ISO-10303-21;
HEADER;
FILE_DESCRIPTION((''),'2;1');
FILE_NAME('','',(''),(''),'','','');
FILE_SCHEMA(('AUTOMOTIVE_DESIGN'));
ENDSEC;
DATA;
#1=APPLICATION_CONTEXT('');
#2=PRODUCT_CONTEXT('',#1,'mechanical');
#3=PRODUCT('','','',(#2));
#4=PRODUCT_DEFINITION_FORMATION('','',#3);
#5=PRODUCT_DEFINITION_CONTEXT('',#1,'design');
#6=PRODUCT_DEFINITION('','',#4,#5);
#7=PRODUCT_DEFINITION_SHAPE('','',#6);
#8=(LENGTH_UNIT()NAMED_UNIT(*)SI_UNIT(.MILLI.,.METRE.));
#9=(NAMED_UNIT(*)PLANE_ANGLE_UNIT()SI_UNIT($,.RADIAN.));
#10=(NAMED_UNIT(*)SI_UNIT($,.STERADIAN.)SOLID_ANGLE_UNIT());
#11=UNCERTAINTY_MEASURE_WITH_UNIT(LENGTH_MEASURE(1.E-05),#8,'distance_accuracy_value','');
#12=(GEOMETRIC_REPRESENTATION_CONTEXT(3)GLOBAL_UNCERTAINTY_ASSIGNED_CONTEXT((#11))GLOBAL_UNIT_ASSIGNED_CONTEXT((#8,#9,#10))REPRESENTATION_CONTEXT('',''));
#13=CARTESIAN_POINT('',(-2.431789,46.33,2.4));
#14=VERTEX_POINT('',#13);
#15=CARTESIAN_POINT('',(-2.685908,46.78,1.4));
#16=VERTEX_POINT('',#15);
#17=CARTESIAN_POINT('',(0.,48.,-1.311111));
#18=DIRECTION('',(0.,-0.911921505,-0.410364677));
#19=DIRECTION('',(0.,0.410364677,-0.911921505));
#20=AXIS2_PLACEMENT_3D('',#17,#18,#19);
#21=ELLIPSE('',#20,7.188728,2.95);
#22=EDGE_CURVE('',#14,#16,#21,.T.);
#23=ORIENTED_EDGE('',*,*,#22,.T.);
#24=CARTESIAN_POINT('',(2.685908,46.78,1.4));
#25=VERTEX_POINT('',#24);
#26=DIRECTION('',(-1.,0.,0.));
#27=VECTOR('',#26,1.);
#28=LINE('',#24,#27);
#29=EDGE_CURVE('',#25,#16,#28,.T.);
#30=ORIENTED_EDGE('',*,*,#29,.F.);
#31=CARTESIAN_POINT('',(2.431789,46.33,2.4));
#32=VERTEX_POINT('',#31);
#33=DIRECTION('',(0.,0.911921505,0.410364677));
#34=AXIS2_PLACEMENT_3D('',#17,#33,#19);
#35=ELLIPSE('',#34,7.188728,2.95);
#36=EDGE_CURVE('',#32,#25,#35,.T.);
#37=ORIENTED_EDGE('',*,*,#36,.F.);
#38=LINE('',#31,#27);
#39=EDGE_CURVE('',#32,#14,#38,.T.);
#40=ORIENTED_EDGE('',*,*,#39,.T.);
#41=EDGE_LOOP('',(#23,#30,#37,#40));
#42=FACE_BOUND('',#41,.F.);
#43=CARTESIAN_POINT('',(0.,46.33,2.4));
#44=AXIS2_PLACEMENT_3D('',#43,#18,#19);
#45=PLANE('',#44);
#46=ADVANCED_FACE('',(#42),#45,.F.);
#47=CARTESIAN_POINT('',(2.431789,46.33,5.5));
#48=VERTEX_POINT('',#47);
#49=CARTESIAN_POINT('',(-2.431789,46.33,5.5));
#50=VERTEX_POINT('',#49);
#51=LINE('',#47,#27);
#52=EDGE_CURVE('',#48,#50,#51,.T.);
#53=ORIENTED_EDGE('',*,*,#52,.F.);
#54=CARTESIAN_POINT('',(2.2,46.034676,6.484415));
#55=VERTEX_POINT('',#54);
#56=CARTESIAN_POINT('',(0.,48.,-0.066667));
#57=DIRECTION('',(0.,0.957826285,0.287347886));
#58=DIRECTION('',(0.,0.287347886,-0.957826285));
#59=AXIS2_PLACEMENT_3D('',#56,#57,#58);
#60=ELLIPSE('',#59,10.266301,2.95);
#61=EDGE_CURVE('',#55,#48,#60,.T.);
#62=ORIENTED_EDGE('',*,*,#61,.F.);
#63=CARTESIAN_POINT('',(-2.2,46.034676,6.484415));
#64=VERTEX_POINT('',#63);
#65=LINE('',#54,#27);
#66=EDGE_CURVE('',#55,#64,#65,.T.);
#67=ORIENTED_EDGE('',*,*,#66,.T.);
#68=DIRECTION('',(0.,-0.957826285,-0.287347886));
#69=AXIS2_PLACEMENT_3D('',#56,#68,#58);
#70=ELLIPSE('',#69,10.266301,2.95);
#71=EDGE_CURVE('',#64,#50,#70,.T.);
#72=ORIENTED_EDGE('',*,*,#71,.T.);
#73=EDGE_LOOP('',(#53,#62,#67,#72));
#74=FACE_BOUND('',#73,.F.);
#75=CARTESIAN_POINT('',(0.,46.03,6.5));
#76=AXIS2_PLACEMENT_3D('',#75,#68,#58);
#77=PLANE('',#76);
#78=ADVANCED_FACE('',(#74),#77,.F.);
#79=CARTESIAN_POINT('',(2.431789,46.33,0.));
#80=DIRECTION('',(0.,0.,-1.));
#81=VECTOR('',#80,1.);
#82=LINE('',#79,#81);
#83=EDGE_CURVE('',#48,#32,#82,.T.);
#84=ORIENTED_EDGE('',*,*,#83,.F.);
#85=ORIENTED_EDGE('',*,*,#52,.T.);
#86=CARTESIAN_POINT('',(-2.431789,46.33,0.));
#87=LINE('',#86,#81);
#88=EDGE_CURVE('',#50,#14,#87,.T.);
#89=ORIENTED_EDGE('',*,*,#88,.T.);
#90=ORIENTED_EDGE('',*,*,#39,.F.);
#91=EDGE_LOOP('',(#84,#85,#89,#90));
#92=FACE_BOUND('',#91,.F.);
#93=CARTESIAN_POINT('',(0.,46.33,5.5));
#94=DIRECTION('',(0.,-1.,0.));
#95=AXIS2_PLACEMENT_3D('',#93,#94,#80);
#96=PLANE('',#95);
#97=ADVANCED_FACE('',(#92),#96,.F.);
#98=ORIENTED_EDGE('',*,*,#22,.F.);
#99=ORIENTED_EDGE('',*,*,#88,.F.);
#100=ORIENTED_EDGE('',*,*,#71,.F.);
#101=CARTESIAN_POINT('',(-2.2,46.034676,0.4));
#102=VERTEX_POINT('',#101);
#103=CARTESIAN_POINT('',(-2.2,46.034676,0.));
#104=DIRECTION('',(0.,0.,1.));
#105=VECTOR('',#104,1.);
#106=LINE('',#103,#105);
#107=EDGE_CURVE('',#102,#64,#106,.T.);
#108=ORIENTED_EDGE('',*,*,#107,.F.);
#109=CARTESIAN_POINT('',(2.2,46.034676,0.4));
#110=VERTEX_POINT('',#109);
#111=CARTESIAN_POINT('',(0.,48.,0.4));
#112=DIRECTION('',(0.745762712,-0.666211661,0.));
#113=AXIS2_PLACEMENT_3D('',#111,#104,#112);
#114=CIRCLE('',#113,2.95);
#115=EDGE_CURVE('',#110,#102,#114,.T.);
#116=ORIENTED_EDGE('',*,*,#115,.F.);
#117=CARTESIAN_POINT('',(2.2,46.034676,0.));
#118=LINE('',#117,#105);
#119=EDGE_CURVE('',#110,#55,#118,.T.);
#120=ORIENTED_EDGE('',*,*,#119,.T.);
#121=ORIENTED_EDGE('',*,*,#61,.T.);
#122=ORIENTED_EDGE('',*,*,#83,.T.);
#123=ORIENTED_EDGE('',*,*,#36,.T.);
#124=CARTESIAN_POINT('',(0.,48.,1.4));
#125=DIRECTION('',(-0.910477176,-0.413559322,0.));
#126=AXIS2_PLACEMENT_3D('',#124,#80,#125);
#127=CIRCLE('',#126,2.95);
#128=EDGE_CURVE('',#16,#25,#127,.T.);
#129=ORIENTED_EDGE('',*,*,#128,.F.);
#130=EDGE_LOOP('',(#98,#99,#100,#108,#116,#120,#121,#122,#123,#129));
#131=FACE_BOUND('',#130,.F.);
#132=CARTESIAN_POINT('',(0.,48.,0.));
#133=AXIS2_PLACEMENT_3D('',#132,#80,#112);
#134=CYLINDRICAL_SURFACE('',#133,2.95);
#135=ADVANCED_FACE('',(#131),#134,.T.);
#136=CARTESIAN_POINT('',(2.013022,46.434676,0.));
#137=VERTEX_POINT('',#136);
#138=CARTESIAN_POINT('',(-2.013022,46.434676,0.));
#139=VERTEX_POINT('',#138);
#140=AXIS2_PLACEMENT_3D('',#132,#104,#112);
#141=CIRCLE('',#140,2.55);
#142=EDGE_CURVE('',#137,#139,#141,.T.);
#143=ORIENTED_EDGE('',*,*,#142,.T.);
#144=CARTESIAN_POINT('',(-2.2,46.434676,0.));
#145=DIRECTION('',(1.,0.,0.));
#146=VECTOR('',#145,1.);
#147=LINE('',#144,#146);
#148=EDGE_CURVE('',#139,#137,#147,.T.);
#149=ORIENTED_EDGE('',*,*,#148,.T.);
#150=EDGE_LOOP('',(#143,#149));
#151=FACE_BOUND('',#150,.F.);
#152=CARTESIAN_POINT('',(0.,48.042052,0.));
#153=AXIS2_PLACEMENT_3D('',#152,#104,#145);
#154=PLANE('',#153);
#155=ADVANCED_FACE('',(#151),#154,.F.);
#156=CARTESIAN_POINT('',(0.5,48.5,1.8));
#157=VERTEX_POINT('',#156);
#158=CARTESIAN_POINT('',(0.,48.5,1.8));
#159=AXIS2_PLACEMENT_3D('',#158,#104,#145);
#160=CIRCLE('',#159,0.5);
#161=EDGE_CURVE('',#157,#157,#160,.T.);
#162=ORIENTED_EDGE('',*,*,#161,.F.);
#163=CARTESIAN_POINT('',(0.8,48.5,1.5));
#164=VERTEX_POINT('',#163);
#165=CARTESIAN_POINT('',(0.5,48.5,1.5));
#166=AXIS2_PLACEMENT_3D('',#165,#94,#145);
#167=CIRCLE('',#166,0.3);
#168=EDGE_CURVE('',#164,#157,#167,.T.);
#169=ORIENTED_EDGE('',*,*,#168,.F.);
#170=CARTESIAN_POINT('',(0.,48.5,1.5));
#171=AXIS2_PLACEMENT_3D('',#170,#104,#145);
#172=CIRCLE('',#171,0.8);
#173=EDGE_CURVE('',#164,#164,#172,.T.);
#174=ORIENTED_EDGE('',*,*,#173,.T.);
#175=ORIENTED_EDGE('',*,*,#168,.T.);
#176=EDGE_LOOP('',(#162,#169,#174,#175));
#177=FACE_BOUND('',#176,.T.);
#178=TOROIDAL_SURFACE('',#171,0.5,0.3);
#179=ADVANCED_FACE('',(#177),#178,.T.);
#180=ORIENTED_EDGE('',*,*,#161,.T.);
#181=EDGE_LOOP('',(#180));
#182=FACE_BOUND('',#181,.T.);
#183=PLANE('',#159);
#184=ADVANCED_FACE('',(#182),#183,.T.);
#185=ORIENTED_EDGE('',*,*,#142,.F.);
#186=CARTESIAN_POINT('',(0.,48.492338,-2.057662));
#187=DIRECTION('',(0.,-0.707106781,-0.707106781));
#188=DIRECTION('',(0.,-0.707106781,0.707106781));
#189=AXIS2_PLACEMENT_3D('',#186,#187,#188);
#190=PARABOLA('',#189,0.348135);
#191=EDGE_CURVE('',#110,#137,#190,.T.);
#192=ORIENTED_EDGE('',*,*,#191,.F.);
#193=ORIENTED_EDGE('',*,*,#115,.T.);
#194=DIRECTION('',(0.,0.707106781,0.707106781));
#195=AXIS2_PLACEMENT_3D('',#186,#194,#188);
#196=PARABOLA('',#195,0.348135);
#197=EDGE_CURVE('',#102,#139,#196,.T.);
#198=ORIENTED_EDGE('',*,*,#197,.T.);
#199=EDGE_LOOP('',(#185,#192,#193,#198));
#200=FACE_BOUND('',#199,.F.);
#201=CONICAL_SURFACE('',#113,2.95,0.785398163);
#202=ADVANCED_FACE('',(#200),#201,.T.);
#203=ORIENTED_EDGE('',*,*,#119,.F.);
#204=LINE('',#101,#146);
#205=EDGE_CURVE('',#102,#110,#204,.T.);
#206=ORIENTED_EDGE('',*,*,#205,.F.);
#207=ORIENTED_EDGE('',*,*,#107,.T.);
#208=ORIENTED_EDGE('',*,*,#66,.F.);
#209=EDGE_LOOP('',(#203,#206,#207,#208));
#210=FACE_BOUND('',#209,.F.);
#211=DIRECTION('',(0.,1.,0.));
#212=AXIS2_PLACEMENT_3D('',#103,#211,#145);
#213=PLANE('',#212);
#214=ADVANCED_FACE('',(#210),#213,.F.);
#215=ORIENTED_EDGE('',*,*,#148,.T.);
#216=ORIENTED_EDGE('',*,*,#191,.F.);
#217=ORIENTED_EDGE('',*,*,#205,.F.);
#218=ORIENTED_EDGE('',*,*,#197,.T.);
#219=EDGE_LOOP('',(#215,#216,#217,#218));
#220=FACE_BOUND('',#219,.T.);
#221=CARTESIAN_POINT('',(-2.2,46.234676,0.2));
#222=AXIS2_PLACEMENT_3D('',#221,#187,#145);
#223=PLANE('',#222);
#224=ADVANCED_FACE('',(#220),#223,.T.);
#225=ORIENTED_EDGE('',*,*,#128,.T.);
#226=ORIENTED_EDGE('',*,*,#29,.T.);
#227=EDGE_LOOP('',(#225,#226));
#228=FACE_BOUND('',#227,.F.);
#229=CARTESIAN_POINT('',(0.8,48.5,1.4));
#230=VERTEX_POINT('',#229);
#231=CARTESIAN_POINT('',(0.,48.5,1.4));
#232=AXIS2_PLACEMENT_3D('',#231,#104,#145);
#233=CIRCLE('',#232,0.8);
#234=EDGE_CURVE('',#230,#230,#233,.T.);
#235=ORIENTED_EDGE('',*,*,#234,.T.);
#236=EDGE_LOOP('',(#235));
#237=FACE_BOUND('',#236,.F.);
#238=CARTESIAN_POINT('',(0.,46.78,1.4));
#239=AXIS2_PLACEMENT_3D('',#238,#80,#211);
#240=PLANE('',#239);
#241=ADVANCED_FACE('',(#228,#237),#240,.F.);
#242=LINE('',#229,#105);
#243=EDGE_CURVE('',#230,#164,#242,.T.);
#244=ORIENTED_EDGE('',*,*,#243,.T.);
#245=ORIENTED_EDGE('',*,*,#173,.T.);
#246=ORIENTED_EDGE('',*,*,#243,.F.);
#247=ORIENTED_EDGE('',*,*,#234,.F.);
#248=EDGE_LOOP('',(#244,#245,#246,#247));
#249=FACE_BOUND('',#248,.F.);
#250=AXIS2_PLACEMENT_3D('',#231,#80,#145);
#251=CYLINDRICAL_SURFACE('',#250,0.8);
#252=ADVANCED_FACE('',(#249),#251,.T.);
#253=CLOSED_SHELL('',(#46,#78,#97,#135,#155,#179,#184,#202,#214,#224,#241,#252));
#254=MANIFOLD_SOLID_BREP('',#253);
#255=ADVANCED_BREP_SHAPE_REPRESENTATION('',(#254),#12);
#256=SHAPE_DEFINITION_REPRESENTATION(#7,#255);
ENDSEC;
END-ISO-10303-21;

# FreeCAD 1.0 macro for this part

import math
import FreeCAD as App
import Part
import Sketcher
from FreeCAD import Vector
Q = App.Units.Quantity


def edges_at(feature, points):
    """Names of the edges that pass closest to the given points."""
    edges = feature.Shape.Edges
    near = lambda p: min(range(len(edges)), key=lambda i: edges[i].distToShape(Part.Vertex(*p))[0])
    return sorted({f"Edge{near(p) + 1}" for p in points})

doc = App.newDocument("Part")
body = doc.addObject("PartDesign::Body", "Body")

sketch1 = body.newObject("Sketcher::SketchObject", "Sketch")
sketch1.AttachmentSupport = (doc.getObject("XY_Plane"), [""])
sketch1.MapMode = "FlatFace"
sketch1.addGeometry([
    Part.ArcOfCircle(Part.Circle(Vector(0, 0, 0), Vector(0, 0, 1), 3), math.radians(-42), math.radians(222)),
    Part.LineSegment(Vector(-2.2, -2, 0), Vector(2.2, -2, 0)),
], False)
sketch1.addConstraint([
    Sketcher.Constraint("Coincident", 0, 1, 1, 2),
    Sketcher.Constraint("Coincident", 1, 1, 0, 2),
    Sketcher.Constraint("Horizontal", 1),
    Sketcher.Constraint("Coincident", 0, 3, -1, 1),
    Sketcher.Constraint("Radius", 0, Q("2.95 mm")),
    Sketcher.Constraint("DistanceX", 1, 1, 1, 2, Q("4.4 mm")),
])
pad1 = body.newObject("PartDesign::Pad", "Pad")
pad1.Profile = sketch1
pad1.Length = 6.5

sketch2 = body.newObject("Sketcher::SketchObject", "Sketch001")
sketch2.AttachmentSupport = (doc.getObject("YZ_Plane"), [""])
sketch2.MapMode = "FlatFace"
sketch2.addGeometry([
    Part.LineSegment(Vector(-2, 6.5, 0), Vector(-1.7, 5.5, 0)),
    Part.LineSegment(Vector(-1.7, 5.5, 0), Vector(-1.7, 2.4, 0)),
    Part.LineSegment(Vector(-1.7, 2.4, 0), Vector(-1.2, 1.4, 0)),
    Part.LineSegment(Vector(-1.2, 1.4, 0), Vector(4, 1.4, 0)),
    Part.LineSegment(Vector(4, 1.4, 0), Vector(4, 6.5, 0)),
    Part.LineSegment(Vector(4, 6.5, 0), Vector(-2, 6.5, 0)),
], False)
sketch2.addConstraint([
    Sketcher.Constraint("Coincident", 0, 2, 1, 1),
    Sketcher.Constraint("Coincident", 1, 2, 2, 1),
    Sketcher.Constraint("Coincident", 2, 2, 3, 1),
    Sketcher.Constraint("Coincident", 3, 2, 4, 1),
    Sketcher.Constraint("Coincident", 4, 2, 5, 1),
    Sketcher.Constraint("Coincident", 5, 2, 0, 1),
    Sketcher.Constraint("Vertical", 1),
    Sketcher.Constraint("Horizontal", 3),
    Sketcher.Constraint("Vertical", 4),
    Sketcher.Constraint("Horizontal", 5),
    Sketcher.Constraint("DistanceY", 1, 2, 1, 1, Q("3.1 mm")),
    Sketcher.Constraint("DistanceY", 4, 1, 4, 2, Q("5.1 mm")),
    Sketcher.Constraint("DistanceX", -1, 1, 3, 2, Q("4 mm")),
    Sketcher.Constraint("DistanceY", 2, 2, 1, 2, Q("1 mm")),
    Sketcher.Constraint("DistanceX", 3, 1, 3, 2, Q("5.22 mm")),
    Sketcher.Constraint("DistanceX", 5, 2, 5, 1, Q("5.97 mm")),
    Sketcher.Constraint("DistanceY", -1, 1, 0, 2, Q("5.5 mm")),
    Sketcher.Constraint("DistanceX", 5, 2, 0, 2, Q("0.3 mm")),
])
pocket1 = body.newObject("PartDesign::Pocket", "Pocket")
pocket1.Profile = sketch2
pocket1.Type = "ThroughAll"
pocket1.Midplane = True

sketch3 = body.newObject("Sketcher::SketchObject", "Sketch002")
sketch3.AttachmentSupport = (doc.getObject("XY_Plane"), [""])
sketch3.MapMode = "FlatFace"
sketch3.AttachmentOffset = App.Placement(Vector(0, 0, 1.4), App.Rotation())
sketch3.addGeometry(Part.Circle(Vector(0, 0.5, 0), Vector(0, 0, 1), 0.8), False)
sketch3.addConstraint([
    Sketcher.Constraint("PointOnObject", 0, 3, -2),
    Sketcher.Constraint("Diameter", 0, Q("1.6 mm")),
    Sketcher.Constraint("DistanceY", -1, 1, 0, 3, Q("0.5 mm")),
])
pad2 = body.newObject("PartDesign::Pad", "Pad001")
pad2.Profile = sketch3
pad2.Length = 0.4
doc.recompute()

fillet = body.newObject("PartDesign::Fillet", "Fillet")
fillet.Base = (pad2, edges_at(pad2, [(-0.8, 0.5, 1.8)]))
fillet.Radius = 0.3
doc.recompute()

chamfer = body.newObject("PartDesign::Chamfer", "Chamfer")
chamfer.Base = (fillet, edges_at(fillet, [(0, 2.95, 0), (0, -1.965, 0)]))
chamfer.Size = 0.4
body2 = doc.addObject("PartDesign::Body", "Body001")
doc.recompute()

body.Placement = App.Placement(Vector(0, 48, 0), App.Rotation(Vector(0, 0, 1), 0))
boolean = body2.newObject("PartDesign::Boolean", "Boolean")
boolean.Type = "Fuse"
boolean.addObjects([body])

doc.recompute()
